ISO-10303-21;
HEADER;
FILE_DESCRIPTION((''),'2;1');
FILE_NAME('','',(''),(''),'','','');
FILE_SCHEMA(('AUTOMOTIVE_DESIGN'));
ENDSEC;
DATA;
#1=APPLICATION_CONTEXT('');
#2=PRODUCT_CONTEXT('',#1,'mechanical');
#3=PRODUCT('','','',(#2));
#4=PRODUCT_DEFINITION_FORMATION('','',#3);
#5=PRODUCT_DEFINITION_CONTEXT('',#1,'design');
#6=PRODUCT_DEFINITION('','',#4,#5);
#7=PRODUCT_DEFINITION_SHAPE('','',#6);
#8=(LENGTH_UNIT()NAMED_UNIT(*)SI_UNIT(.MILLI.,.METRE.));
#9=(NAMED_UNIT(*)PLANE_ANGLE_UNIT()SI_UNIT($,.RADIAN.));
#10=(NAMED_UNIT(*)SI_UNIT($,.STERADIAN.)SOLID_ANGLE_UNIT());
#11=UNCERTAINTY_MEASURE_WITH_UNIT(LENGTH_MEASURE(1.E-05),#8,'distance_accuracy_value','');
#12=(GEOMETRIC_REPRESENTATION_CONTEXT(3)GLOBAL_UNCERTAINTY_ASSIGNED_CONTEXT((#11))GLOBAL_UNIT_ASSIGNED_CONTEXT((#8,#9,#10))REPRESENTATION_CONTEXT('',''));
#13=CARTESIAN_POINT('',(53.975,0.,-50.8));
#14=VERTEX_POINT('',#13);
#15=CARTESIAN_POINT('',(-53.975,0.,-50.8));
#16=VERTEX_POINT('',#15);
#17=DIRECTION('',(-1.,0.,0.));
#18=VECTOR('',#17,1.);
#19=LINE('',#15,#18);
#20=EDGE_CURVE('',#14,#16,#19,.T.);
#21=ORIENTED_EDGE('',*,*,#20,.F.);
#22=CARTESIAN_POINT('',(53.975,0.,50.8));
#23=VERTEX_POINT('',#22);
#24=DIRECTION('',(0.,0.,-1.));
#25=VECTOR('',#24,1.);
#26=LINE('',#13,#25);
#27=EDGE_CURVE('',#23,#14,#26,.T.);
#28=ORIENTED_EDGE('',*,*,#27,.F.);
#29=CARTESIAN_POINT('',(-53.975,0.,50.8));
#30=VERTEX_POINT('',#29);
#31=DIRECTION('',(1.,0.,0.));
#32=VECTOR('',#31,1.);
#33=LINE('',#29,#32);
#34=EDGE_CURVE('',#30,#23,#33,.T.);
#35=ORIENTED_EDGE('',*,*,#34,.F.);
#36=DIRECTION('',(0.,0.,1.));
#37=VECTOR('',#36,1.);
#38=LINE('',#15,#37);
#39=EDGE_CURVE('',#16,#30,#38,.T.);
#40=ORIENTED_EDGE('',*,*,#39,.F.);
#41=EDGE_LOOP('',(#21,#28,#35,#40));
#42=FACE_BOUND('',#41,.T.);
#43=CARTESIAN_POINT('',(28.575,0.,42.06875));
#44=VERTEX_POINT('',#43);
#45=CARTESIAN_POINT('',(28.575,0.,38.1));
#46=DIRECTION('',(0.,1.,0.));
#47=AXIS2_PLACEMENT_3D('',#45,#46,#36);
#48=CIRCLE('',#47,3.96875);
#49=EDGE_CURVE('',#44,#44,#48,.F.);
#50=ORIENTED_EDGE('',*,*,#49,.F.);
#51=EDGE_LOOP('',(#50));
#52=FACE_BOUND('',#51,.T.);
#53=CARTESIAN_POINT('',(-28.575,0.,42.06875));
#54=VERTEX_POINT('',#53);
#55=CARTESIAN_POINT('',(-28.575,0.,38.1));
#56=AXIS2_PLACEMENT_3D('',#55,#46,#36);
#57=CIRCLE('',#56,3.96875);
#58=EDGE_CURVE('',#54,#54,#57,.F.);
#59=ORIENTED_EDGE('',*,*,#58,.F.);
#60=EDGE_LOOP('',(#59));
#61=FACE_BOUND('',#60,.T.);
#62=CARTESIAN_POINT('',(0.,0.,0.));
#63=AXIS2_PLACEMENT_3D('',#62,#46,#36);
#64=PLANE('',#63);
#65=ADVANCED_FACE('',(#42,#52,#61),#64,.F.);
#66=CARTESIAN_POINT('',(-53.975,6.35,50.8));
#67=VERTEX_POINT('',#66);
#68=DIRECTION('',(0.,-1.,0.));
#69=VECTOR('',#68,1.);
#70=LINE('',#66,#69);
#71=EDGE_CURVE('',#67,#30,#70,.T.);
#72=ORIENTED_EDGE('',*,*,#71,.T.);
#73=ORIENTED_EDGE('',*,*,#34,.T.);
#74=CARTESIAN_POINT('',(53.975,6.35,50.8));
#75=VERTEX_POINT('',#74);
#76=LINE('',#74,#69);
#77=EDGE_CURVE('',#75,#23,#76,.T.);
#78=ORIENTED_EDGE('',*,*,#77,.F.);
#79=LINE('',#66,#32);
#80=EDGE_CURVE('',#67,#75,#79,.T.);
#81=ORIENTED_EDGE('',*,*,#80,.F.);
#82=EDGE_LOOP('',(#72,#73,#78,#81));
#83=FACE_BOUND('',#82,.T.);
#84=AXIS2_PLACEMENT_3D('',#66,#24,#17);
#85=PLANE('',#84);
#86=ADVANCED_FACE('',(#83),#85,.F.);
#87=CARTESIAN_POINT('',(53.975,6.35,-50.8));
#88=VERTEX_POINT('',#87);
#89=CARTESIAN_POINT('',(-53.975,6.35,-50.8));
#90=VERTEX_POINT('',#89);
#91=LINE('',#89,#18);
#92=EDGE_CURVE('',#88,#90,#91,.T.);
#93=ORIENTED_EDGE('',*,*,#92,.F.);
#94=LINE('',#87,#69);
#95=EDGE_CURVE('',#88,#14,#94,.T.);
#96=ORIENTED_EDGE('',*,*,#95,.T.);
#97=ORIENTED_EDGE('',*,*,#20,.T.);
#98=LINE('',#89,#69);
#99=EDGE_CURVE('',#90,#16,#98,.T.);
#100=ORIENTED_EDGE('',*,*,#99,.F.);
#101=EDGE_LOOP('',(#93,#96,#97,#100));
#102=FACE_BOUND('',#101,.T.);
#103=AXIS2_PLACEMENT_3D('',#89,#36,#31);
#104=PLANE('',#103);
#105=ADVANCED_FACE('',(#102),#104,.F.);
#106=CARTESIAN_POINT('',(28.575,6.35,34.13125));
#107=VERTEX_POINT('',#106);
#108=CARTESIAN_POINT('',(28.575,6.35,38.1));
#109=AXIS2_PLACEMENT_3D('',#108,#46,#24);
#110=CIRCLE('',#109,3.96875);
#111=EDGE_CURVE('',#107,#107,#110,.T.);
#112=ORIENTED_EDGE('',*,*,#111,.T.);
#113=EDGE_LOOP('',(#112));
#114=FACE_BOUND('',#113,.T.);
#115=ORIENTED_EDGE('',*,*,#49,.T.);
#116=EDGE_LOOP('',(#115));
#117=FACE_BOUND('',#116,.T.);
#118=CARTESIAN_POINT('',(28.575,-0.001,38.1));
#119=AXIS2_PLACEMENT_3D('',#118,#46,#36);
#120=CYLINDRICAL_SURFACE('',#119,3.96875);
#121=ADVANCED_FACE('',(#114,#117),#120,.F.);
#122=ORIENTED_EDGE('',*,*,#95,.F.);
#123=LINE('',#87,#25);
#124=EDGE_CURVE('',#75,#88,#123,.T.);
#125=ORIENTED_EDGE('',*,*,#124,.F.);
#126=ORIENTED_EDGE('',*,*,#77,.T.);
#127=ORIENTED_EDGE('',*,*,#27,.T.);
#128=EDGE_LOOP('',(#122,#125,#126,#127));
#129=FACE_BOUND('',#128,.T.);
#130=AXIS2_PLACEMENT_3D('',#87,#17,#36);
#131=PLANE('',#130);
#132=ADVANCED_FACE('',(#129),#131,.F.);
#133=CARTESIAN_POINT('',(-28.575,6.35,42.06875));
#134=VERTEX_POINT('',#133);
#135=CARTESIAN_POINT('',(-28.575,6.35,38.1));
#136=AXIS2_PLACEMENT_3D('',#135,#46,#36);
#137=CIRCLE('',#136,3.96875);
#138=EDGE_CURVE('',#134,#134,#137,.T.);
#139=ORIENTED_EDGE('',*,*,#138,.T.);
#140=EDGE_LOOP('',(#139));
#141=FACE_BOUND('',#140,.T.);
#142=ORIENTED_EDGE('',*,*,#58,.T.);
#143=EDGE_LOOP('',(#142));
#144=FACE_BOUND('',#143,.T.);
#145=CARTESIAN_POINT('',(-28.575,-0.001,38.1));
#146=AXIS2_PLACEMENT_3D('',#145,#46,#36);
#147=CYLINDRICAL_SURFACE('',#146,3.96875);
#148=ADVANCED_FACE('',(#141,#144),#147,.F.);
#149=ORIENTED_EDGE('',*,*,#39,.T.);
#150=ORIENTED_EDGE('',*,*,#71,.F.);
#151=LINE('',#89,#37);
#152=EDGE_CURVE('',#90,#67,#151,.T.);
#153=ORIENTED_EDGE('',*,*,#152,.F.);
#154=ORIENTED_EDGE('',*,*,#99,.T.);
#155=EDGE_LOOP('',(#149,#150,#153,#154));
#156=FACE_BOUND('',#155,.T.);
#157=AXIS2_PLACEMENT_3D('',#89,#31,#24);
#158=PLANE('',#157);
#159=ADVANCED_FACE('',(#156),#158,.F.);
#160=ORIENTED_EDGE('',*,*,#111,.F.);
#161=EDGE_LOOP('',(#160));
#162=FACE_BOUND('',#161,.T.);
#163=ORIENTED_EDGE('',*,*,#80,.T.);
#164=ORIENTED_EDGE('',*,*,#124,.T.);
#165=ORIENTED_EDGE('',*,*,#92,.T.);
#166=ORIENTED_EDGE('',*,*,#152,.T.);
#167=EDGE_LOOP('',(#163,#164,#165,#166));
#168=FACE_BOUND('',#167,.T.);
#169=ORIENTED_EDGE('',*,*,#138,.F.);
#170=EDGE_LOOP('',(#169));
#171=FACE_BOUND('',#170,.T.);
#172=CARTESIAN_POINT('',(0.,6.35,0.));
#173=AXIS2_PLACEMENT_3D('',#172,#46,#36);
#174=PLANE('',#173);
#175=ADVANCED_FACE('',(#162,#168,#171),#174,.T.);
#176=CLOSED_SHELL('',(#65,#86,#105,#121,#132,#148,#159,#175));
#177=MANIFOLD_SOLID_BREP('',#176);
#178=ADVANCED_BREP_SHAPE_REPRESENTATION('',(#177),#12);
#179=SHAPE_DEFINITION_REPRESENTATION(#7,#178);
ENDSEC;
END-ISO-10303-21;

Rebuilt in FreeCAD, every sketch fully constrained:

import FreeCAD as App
import Part
import Sketcher
from FreeCAD import Vector
Q = App.Units.Quantity

doc = App.newDocument("Part")
body = doc.addObject("PartDesign::Body", "Body")

sketch1 = body.newObject("Sketcher::SketchObject", "Sketch")
sketch1.AttachmentSupport = (doc.getObject("XZ_Plane"), [""])
sketch1.MapMode = "FlatFace"
sketch1.addGeometry([
    Part.LineSegment(Vector(-54, -51, 0), Vector(-54, 51, 0)),
    Part.LineSegment(Vector(-54, 51, 0), Vector(54, 51, 0)),
    Part.LineSegment(Vector(54, 51, 0), Vector(54, -51, 0)),
    Part.LineSegment(Vector(54, -51, 0), Vector(-54, -51, 0)),
], False)
sketch1.addConstraint([
    Sketcher.Constraint("Coincident", 0, 2, 1, 1),
    Sketcher.Constraint("Coincident", 1, 2, 2, 1),
    Sketcher.Constraint("Coincident", 2, 2, 3, 1),
    Sketcher.Constraint("Coincident", 3, 2, 0, 1),
    Sketcher.Constraint("Vertical", 0),
    Sketcher.Constraint("Horizontal", 1),
    Sketcher.Constraint("Vertical", 2),
    Sketcher.Constraint("Horizontal", 3),
    Sketcher.Constraint("Symmetric", 0, 2, 2, 2, -1, 1),
    Sketcher.Constraint("DistanceY", 0, 1, 0, 2, Q("4 in")),
    Sketcher.Constraint("DistanceX", 1, 1, 1, 2, Q("4.25 in")),
])
pad1 = body.newObject("PartDesign::Pad", "Pad")
pad1.Profile = sketch1
pad1.Length = Q("0.25 in")
pad1.Reversed = True

sketch2 = body.newObject("Sketcher::SketchObject", "Sketch001")
sketch2.AttachmentSupport = (doc.getObject("XZ_Plane"), [""])
sketch2.MapMode = "FlatFace"
sketch2.AttachmentOffset = App.Placement(Vector(0, 0, -0.25 * 25.4), App.Rotation())
sketch2.addGeometry(Part.Circle(Vector(-28.6, 38.1, 0), Vector(0, 0, 1), 4), False)
sketch2.addConstraint([
    Sketcher.Constraint("Diameter", 0, Q("0.3125 in")),
    Sketcher.Constraint("DistanceY", -1, 1, 0, 3, Q("1.5 in")),
    Sketcher.Constraint("DistanceX", 0, 3, -1, 1, Q("1.125 in")),
])
pocket1 = body.newObject("PartDesign::Pocket", "Pocket")
pocket1.Profile = sketch2
pocket1.Type = "UpToFirst"
pocket1.Reversed = True

sketch3 = body.newObject("Sketcher::SketchObject", "Sketch002")
sketch3.AttachmentSupport = (doc.getObject("XZ_Plane"), [""])
sketch3.MapMode = "FlatFace"
sketch3.AttachmentOffset = App.Placement(Vector(0, 0, -0.25 * 25.4), App.Rotation())
sketch3.addGeometry(Part.Circle(Vector(28.6, 38.1, 0), Vector(0, 0, 1), 4), False)
sketch3.addConstraint([
    Sketcher.Constraint("Diameter", 0, Q("0.3125 in")),
    Sketcher.Constraint("DistanceY", -1, 1, 0, 3, Q("1.5 in")),
    Sketcher.Constraint("DistanceX", -1, 1, 0, 3, Q("1.125 in")),
])
pocket2 = body.newObject("PartDesign::Pocket", "Pocket001")
pocket2.Profile = sketch3
pocket2.Type = "UpToFirst"
pocket2.Reversed = True

doc.recompute()
